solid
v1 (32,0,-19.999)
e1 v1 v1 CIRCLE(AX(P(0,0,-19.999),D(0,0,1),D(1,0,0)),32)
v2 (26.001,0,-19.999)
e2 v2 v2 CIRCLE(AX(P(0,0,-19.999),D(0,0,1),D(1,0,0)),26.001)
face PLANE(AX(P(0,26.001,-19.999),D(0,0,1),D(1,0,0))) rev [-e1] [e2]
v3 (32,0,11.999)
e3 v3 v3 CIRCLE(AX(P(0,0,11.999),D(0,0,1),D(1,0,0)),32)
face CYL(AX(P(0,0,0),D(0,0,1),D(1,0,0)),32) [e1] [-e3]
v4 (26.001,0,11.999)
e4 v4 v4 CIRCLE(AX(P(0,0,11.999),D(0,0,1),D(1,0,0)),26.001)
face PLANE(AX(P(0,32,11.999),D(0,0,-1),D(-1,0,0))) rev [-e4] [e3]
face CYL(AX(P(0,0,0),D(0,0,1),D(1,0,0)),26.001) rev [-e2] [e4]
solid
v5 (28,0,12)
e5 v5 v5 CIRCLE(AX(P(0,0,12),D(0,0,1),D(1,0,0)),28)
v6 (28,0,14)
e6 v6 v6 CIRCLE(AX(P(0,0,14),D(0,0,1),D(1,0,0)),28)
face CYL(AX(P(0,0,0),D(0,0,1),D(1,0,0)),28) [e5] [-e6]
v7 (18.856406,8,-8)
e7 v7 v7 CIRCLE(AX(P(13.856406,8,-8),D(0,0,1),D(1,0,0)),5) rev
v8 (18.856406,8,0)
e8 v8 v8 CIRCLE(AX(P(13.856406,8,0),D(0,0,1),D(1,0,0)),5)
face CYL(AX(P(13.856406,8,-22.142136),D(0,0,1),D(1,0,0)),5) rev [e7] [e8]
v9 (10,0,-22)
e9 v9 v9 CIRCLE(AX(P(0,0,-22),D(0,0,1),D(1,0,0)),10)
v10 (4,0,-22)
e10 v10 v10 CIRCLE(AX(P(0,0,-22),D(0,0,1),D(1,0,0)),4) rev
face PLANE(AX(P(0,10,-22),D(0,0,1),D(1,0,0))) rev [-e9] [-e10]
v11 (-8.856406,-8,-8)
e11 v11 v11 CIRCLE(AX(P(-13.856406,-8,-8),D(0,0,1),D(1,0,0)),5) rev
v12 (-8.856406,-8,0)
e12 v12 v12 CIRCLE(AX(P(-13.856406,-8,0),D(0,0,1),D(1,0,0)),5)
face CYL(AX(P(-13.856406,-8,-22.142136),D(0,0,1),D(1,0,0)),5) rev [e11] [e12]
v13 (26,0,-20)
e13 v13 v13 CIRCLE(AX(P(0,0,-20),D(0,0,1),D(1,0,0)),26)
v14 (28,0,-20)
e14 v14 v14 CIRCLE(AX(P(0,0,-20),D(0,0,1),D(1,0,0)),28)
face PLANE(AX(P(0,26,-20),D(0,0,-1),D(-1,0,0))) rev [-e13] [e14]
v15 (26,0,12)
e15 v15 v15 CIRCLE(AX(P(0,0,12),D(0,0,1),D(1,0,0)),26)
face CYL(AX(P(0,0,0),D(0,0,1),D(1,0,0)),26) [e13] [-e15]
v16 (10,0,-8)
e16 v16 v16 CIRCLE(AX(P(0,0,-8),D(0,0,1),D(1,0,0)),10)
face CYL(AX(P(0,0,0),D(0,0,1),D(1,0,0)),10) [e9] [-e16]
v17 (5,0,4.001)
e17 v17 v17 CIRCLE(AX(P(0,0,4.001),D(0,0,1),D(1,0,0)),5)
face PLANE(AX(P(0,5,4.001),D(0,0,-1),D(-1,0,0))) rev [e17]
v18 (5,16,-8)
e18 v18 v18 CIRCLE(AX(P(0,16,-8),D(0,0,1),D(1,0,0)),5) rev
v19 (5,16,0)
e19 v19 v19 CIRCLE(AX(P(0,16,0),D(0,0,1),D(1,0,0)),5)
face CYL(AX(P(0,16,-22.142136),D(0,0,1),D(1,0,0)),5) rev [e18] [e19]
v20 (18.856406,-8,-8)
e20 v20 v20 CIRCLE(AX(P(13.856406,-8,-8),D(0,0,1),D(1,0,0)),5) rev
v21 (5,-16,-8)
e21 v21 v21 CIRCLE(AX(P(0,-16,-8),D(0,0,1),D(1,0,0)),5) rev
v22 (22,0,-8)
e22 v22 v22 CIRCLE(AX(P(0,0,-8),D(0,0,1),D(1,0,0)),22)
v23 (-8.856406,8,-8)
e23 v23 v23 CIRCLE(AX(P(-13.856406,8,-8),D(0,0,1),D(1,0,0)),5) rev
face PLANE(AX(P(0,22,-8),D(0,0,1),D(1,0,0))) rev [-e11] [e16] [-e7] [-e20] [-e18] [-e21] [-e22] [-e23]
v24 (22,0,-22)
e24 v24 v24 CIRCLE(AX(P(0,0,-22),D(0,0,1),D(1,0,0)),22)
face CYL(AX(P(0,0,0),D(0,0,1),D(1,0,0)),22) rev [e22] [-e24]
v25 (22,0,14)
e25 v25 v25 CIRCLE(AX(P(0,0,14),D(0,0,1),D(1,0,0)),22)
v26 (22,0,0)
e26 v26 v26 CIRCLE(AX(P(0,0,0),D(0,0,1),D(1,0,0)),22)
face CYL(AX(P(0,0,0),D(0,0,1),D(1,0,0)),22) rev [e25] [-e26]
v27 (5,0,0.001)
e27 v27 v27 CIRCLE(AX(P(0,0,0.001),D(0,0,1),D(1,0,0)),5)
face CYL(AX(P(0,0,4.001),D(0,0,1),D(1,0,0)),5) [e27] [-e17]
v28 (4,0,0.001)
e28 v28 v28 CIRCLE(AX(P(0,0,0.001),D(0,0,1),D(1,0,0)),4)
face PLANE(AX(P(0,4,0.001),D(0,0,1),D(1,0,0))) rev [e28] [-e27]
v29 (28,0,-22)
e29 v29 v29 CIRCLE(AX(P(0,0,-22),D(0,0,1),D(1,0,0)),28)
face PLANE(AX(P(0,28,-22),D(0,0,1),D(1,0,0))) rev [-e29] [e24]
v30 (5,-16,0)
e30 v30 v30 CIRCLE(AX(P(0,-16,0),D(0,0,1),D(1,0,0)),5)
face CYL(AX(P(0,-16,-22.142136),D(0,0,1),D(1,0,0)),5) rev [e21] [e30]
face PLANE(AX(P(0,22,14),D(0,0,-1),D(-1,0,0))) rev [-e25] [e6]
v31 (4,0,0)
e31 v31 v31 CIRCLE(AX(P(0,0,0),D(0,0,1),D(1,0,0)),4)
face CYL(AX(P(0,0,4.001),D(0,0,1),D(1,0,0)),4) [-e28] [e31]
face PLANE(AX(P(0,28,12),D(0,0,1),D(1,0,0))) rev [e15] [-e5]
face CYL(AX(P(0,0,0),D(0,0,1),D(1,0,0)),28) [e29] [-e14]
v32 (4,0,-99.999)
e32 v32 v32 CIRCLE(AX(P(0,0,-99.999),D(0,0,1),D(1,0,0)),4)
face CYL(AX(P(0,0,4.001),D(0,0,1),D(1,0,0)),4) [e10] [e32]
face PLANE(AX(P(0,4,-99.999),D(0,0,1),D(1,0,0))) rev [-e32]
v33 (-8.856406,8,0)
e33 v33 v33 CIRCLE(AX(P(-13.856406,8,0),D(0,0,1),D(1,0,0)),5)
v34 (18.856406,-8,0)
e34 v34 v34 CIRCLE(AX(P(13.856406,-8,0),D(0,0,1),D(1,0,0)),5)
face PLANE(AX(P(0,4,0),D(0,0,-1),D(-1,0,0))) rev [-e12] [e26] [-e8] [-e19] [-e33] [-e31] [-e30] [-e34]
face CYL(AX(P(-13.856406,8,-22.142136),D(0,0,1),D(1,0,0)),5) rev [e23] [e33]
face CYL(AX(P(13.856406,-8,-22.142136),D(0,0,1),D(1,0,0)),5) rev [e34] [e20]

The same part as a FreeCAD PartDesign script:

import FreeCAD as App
import Part
import Sketcher
from FreeCAD import Vector

doc = App.newDocument("Part")
body = doc.addObject("PartDesign::Body", "Body")

sketch1 = body.newObject("Sketcher::SketchObject", "Sketch")
sketch1.AttachmentSupport = (doc.getObject("YZ_Plane"), [""])
sketch1.MapMode = "FlatFace"
sketch1.addGeometry(Part.LineSegment(Vector(22, 0, 0), Vector(4, 0, 0)), False)
sketch1.addGeometry(Part.LineSegment(Vector(4, 0, 0), Vector(4, -22, 0)), False)
sketch1.addGeometry(Part.LineSegment(Vector(4, -22, 0), Vector(10, -22, 0)), False)
sketch1.addGeometry(Part.LineSegment(Vector(10, -22, 0), Vector(10, -8, 0)), False)
sketch1.addGeometry(Part.LineSegment(Vector(10, -8, 0), Vector(22, -8, 0)), False)
sketch1.addGeometry(Part.LineSegment(Vector(22, -8, 0), Vector(22, -22, 0)), False)
sketch1.addGeometry(Part.LineSegment(Vector(22, -22, 0), Vector(28, -22, 0)), False)
sketch1.addGeometry(Part.LineSegment(Vector(28, -22, 0), Vector(28, -20, 0)), False)
sketch1.addGeometry(Part.LineSegment(Vector(28, -20, 0), Vector(26, -20, 0)), False)
sketch1.addGeometry(Part.LineSegment(Vector(26, -20, 0), Vector(26, 12, 0)), False)
sketch1.addGeometry(Part.LineSegment(Vector(26, 12, 0), Vector(28, 12, 0)), False)
sketch1.addGeometry(Part.LineSegment(Vector(28, 12, 0), Vector(28, 14, 0)), False)
sketch1.addGeometry(Part.LineSegment(Vector(28, 14, 0), Vector(22, 14, 0)), False)
sketch1.addGeometry(Part.LineSegment(Vector(22, 14, 0), Vector(22, 0, 0)), False)
sketch1.addConstraint(Sketcher.Constraint("Coincident", 0, 2, 1, 1))
sketch1.addConstraint(Sketcher.Constraint("Coincident", 1, 2, 2, 1))
sketch1.addConstraint(Sketcher.Constraint("Coincident", 2, 2, 3, 1))
sketch1.addConstraint(Sketcher.Constraint("Coincident", 3, 2, 4, 1))
sketch1.addConstraint(Sketcher.Constraint("Coincident", 4, 2, 5, 1))
sketch1.addConstraint(Sketcher.Constraint("Coincident", 5, 2, 6, 1))
sketch1.addConstraint(Sketcher.Constraint("Coincident", 6, 2, 7, 1))
sketch1.addConstraint(Sketcher.Constraint("Coincident", 7, 2, 8, 1))
sketch1.addConstraint(Sketcher.Constraint("Coincident", 8, 2, 9, 1))
sketch1.addConstraint(Sketcher.Constraint("Coincident", 9, 2, 10, 1))
sketch1.addConstraint(Sketcher.Constraint("Coincident", 10, 2, 11, 1))
sketch1.addConstraint(Sketcher.Constraint("Coincident", 11, 2, 12, 1))
sketch1.addConstraint(Sketcher.Constraint("Coincident", 12, 2, 13, 1))
sketch1.addConstraint(Sketcher.Constraint("Coincident", 13, 2, 0, 1))
sketch1.addConstraint(Sketcher.Constraint("Horizontal", 0))
sketch1.addConstraint(Sketcher.Constraint("Vertical", 1))
sketch1.addConstraint(Sketcher.Constraint("Horizontal", 2))
sketch1.addConstraint(Sketcher.Constraint("Vertical", 3))
sketch1.addConstraint(Sketcher.Constraint("Horizontal", 4))
sketch1.addConstraint(Sketcher.Constraint("Vertical", 5))
sketch1.addConstraint(Sketcher.Constraint("Horizontal", 6))
sketch1.addConstraint(Sketcher.Constraint("Vertical", 7))
sketch1.addConstraint(Sketcher.Constraint("Horizontal", 8))
sketch1.addConstraint(Sketcher.Constraint("Vertical", 9))
sketch1.addConstraint(Sketcher.Constraint("Horizontal", 10))
sketch1.addConstraint(Sketcher.Constraint("Vertical", 11))
sketch1.addConstraint(Sketcher.Constraint("Horizontal", 12))
sketch1.addConstraint(Sketcher.Constraint("Vertical", 13))
sketch1.addConstraint(Sketcher.Constraint("PointOnObject", 0, 2, -1))
sketch1.addConstraint(Sketcher.Constraint("Horizontal", 2, 2, 5, 2))
sketch1.addConstraint(Sketcher.Constraint("Vertical", 7, 2, 10, 2))
sketch1.addConstraint(Sketcher.Constraint("Vertical", 5, 2, 12, 2))
sketch1.addConstraint(Sketcher.Constraint("Equal", 2, 6))
sketch1.addConstraint(Sketcher.Constraint("Equal", 10, 7))
sketch1.addConstraint(Sketcher.Constraint("Equal", 7, 11))
sketch1.addConstraint(Sketcher.Constraint("Equal", 5, 13))
sketch1.addConstraint(Sketcher.Constraint("DistanceX", 0, 2, 0, 1, 18.0))
sketch1.addConstraint(Sketcher.Constraint("DistanceX", 2, 1, 2, 2, 6.0))
sketch1.addConstraint(Sketcher.Constraint("DistanceX", 8, 2, 8, 1, 2.0))
sketch1.addConstraint(Sketcher.Constraint("DistanceY", 1, 2, 1, 1, 22.0))
sketch1.addConstraint(Sketcher.Constraint("DistanceY", 3, 1, 3, 2, 14.0))
sketch1.addConstraint(Sketcher.Constraint("DistanceX", -1, 1, 0, 2, 4.0))
revolution = body.newObject("PartDesign::Revolution", "Revolution")
revolution.Profile = sketch1
revolution.ReferenceAxis = (sketch1, ["V_Axis"])
revolution.Angle = 360

sketch2 = body.newObject("Sketcher::SketchObject", "Sketch001")
sketch2.AttachmentSupport = (doc.getObject("XY_Plane"), [""])
sketch2.MapMode = "FlatFace"
sketch2.addGeometry(Part.Circle(Vector(0, 16, 0), Vector(0, 0, 1), 5), False)
sketch2.addGeometry(Part.Circle(Vector(14, 8, 0), Vector(0, 0, 1), 5), False)
sketch2.addGeometry(Part.Circle(Vector(14, -8, 0), Vector(0, 0, 1), 5), False)
sketch2.addGeometry(Part.Circle(Vector(0, -16, 0), Vector(0, 0, 1), 5), False)
sketch2.addGeometry(Part.Circle(Vector(-14, -8, 0), Vector(0, 0, 1), 5), False)
sketch2.addGeometry(Part.Circle(Vector(-14, 8, 0), Vector(0, 0, 1), 5), False)
sketch2.addConstraint(Sketcher.Constraint("Equal", 0, 1))
sketch2.addConstraint(Sketcher.Constraint("Equal", 1, 2))
sketch2.addConstraint(Sketcher.Constraint("Equal", 2, 3))
sketch2.addConstraint(Sketcher.Constraint("Equal", 3, 4))
sketch2.addConstraint(Sketcher.Constraint("Equal", 4, 5))
sketch2.addConstraint(Sketcher.Constraint("Symmetric", 0, 3, 3, 3, -1, 1))
sketch2.addConstraint(Sketcher.Constraint("Symmetric", 1, 3, 4, 3, -1, 1))
sketch2.addConstraint(Sketcher.Constraint("Symmetric", 2, 3, 5, 3, -1, 1))
sketch2.addConstraint(Sketcher.Constraint("Symmetric", 2, 3, 4, 3, -2))
sketch2.addConstraint(Sketcher.Constraint("PointOnObject", 0, 3, -2))
sketch2.addConstraint(Sketcher.Constraint("Diameter", 0, 10.0))
sketch2.addConstraint(Sketcher.Constraint("DistanceY", -1, 1, 0, 3, 16.0))
sketch2.addConstraint(Sketcher.Constraint("DistanceY", -1, 1, 1, 3, 8.0))
sketch2.addConstraint(Sketcher.Constraint("DistanceX", -1, 1, 1, 3, 13.856406))
pocket1 = body.newObject("PartDesign::Pocket", "Pocket")
pocket1.Profile = sketch2
pocket1.Length = 8

sketch3 = body.newObject("Sketcher::SketchObject", "Sketch002")
sketch3.AttachmentSupport = (doc.getObject("YZ_Plane"), [""])
sketch3.MapMode = "FlatFace"
sketch3.addGeometry(Part.LineSegment(Vector(4, 0, 0), Vector(5, 0, 0)), False)
sketch3.addGeometry(Part.LineSegment(Vector(5, 0, 0), Vector(5, 4, 0)), False)
sketch3.addGeometry(Part.LineSegment(Vector(5, 4, 0), Vector(0, 4, 0)), False)
sketch3.addGeometry(Part.LineSegment(Vector(0, 4, 0), Vector(0, -100, 0)), False)
sketch3.addGeometry(Part.LineSegment(Vector(0, -100, 0), Vector(4, -100, 0)), False)
sketch3.addGeometry(Part.LineSegment(Vector(4, -100, 0), Vector(4, 0, 0)), False)
sketch3.addConstraint(Sketcher.Constraint("Coincident", 0, 2, 1, 1))
sketch3.addConstraint(Sketcher.Constraint("Coincident", 1, 2, 2, 1))
sketch3.addConstraint(Sketcher.Constraint("Coincident", 2, 2, 3, 1))
sketch3.addConstraint(Sketcher.Constraint("Coincident", 3, 2, 4, 1))
sketch3.addConstraint(Sketcher.Constraint("Coincident", 4, 2, 5, 1))
sketch3.addConstraint(Sketcher.Constraint("Coincident", 5, 2, 0, 1))
sketch3.addConstraint(Sketcher.Constraint("Horizontal", 0))
sketch3.addConstraint(Sketcher.Constraint("Vertical", 1))
sketch3.addConstraint(Sketcher.Constraint("Horizontal", 2))
sketch3.addConstraint(Sketcher.Constraint("Vertical", 3))
sketch3.addConstraint(Sketcher.Constraint("Horizontal", 4))
sketch3.addConstraint(Sketcher.Constraint("Vertical", 5))
sketch3.addConstraint(Sketcher.Constraint("PointOnObject", 2, 2, -2))
sketch3.addConstraint(Sketcher.Constraint("Equal", 4, 1))
sketch3.addConstraint(Sketcher.Constraint("DistanceX", 0, 1, 0, 2, 1.0))
sketch3.addConstraint(Sketcher.Constraint("DistanceX", 2, 2, 2, 1, 5.0))
sketch3.addConstraint(Sketcher.Constraint("DistanceY", 3, 2, 3, 1, 104.0))
sketch3.addConstraint(Sketcher.Constraint("DistanceY", -1, 1, 0, 2, 0.001))
revolution2 = body.newObject("PartDesign::Revolution", "Revolution001")
revolution2.Profile = sketch3
revolution2.ReferenceAxis = (sketch3, ["V_Axis"])
revolution2.Angle = 360
body2 = doc.addObject("PartDesign::Body", "Body001")

sketch4 = body2.newObject("Sketcher::SketchObject", "Sketch003")
sketch4.AttachmentSupport = (doc.getObject("YZ_Plane001"), [""])
sketch4.MapMode = "FlatFace"
sketch4.addGeometry(Part.LineSegment(Vector(32, 12, 0), Vector(26, 12, 0)), False)
sketch4.addGeometry(Part.LineSegment(Vector(26, 12, 0), Vector(26, -20, 0)), False)
sketch4.addGeometry(Part.LineSegment(Vector(26, -20, 0), Vector(32, -20, 0)), False)
sketch4.addGeometry(Part.LineSegment(Vector(32, -20, 0), Vector(32, 12, 0)), False)
sketch4.addConstraint(Sketcher.Constraint("Coincident", 0, 2, 1, 1))
sketch4.addConstraint(Sketcher.Constraint("Coincident", 1, 2, 2, 1))
sketch4.addConstraint(Sketcher.Constraint("Coincident", 2, 2, 3, 1))
sketch4.addConstraint(Sketcher.Constraint("Coincident", 3, 2, 0, 1))
sketch4.addConstraint(Sketcher.Constraint("Horizontal", 0))
sketch4.addConstraint(Sketcher.Constraint("Vertical", 1))
sketch4.addConstraint(Sketcher.Constraint("Horizontal", 2))
sketch4.addConstraint(Sketcher.Constraint("Vertical", 3))
sketch4.addConstraint(Sketcher.Constraint("DistanceX", -1, 1, 2, 2, 32.0))
sketch4.addConstraint(Sketcher.Constraint("DistanceX", 0, 2, 0, 1, 5.999))
sketch4.addConstraint(Sketcher.Constraint("DistanceY", 1, 2, 1, 1, 31.998))
sketch4.addConstraint(Sketcher.Constraint("DistanceY", -1, 1, 0, 2, 11.999))
revolution3 = body2.newObject("PartDesign::Revolution", "Revolution002")
revolution3.Profile = sketch4
revolution3.ReferenceAxis = (sketch4, ["V_Axis"])
revolution3.Angle = 360

doc.recompute()
